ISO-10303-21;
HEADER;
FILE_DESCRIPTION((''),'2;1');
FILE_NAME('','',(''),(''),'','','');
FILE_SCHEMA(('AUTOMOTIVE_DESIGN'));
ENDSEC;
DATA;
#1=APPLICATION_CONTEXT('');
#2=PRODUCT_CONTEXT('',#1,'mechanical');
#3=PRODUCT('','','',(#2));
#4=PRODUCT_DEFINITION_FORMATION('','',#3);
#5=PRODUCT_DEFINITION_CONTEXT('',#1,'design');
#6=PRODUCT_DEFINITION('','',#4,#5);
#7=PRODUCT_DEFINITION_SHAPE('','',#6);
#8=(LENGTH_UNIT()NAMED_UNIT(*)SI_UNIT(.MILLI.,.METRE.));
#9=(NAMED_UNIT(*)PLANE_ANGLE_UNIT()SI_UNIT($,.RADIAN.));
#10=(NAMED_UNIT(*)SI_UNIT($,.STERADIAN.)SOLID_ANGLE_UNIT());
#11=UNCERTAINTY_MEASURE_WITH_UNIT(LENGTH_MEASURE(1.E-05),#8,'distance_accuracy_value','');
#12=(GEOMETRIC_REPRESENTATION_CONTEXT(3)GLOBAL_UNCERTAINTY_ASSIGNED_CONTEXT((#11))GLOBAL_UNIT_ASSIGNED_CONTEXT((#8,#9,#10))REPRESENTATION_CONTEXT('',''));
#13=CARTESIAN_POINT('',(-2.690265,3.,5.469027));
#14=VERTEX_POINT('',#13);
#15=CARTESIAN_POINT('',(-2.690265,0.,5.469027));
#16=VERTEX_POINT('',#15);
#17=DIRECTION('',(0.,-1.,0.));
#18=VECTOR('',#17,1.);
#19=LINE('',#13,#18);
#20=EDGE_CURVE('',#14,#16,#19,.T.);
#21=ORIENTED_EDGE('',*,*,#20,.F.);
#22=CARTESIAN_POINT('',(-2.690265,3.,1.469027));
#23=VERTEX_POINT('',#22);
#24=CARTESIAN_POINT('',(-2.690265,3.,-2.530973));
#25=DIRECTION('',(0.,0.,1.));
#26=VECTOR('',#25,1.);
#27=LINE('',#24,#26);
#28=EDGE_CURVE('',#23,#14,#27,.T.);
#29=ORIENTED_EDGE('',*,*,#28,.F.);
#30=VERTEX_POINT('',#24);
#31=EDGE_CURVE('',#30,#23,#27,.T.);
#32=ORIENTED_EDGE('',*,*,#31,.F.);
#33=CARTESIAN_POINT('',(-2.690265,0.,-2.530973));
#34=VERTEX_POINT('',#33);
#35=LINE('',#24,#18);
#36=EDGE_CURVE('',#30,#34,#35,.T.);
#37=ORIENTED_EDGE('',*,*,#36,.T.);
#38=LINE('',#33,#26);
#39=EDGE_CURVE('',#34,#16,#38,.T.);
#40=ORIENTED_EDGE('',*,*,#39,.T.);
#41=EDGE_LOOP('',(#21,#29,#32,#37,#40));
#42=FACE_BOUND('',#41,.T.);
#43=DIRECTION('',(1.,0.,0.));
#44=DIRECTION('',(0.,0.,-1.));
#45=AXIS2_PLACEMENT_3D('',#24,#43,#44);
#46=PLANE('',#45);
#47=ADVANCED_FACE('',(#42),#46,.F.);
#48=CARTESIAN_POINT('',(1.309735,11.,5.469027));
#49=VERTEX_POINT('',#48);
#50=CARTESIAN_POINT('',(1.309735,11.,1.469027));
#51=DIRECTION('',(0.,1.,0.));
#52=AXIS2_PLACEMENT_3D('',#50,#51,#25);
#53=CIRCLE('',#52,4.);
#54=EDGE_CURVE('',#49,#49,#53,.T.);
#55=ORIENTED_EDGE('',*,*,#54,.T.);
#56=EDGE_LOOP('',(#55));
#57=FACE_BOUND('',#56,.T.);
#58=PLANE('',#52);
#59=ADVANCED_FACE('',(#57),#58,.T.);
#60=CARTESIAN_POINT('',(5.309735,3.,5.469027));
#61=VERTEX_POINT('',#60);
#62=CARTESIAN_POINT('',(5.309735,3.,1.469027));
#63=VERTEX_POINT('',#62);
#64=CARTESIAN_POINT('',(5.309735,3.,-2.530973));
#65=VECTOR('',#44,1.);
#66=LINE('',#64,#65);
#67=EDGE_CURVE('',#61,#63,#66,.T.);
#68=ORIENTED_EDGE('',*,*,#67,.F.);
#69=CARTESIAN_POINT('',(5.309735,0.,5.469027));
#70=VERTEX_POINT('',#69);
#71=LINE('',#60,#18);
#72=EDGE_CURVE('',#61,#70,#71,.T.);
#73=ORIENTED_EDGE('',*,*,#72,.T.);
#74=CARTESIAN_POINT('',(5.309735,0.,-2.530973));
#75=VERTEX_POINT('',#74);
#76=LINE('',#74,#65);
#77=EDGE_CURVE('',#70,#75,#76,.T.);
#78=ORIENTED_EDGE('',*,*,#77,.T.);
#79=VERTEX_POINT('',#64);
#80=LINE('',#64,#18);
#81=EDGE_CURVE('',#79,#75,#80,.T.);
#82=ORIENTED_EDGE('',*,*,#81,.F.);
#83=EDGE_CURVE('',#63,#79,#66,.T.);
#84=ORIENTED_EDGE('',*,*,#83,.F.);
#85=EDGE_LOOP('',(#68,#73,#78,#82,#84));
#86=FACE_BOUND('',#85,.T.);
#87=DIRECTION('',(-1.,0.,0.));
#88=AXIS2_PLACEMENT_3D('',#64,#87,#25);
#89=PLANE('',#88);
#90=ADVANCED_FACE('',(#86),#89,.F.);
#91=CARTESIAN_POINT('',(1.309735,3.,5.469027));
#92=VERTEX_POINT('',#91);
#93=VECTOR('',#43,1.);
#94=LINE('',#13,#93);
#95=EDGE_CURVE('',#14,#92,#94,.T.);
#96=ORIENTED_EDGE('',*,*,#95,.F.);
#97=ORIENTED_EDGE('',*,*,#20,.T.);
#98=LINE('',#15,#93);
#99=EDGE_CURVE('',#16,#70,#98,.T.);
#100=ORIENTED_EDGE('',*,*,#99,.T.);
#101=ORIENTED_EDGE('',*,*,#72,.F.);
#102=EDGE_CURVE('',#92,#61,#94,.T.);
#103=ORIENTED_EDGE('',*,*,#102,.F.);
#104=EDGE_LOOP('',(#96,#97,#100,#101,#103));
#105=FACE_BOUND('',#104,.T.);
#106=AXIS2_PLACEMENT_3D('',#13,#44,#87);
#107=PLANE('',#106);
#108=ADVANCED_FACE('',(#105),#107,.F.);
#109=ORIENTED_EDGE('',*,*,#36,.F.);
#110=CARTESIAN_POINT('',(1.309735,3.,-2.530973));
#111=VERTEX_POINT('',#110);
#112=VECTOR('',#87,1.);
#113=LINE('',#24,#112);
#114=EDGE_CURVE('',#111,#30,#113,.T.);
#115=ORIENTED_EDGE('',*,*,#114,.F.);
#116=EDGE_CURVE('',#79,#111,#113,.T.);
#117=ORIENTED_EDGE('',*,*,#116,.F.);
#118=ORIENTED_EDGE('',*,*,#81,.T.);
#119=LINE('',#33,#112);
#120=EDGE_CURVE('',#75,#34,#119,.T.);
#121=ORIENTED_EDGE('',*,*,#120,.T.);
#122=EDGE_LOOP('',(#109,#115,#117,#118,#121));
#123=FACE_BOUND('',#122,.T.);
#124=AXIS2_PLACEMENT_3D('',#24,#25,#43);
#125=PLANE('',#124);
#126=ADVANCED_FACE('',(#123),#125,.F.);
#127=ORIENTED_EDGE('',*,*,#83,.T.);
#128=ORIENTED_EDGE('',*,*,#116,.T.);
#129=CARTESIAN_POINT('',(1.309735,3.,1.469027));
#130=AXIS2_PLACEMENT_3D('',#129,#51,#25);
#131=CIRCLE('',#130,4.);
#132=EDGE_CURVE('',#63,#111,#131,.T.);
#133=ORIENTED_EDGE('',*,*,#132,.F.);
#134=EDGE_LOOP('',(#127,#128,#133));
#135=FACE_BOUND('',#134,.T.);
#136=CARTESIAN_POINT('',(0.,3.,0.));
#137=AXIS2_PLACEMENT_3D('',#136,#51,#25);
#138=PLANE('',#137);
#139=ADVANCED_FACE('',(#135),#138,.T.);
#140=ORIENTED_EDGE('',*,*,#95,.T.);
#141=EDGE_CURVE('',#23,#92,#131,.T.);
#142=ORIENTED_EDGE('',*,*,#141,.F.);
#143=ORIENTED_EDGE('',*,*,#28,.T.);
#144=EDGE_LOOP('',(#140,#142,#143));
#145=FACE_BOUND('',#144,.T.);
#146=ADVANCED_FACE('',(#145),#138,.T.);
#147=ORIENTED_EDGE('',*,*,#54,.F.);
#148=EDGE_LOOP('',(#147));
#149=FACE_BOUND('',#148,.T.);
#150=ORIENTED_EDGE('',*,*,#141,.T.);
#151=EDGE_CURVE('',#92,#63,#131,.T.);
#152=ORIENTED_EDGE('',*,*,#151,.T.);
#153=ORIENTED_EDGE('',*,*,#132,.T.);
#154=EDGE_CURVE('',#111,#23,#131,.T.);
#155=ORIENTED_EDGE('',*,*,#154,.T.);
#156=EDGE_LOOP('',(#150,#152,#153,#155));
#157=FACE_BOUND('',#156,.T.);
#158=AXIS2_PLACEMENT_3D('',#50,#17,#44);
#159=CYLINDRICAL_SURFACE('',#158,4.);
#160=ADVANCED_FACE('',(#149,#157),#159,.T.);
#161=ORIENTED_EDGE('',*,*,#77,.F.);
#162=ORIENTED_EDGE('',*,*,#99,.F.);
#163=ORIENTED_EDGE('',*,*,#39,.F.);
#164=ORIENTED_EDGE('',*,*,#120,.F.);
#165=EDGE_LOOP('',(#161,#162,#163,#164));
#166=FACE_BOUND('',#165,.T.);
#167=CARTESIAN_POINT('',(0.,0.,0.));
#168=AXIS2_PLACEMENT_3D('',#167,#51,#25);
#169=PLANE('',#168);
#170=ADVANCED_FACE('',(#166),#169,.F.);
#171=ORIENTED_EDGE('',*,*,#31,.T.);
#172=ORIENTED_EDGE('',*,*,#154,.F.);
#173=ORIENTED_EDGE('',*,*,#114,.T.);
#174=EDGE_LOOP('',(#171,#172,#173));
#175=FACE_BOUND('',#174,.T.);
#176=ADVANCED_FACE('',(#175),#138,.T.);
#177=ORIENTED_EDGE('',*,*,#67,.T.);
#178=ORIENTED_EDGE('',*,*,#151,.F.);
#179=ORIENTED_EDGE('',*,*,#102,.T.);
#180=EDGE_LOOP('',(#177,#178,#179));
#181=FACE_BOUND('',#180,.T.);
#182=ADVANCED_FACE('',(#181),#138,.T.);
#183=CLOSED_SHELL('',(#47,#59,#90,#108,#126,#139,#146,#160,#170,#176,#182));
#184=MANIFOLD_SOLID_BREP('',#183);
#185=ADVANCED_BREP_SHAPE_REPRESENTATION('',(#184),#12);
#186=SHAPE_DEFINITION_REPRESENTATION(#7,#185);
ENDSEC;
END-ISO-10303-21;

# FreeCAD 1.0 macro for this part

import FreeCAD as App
import Part
import Sketcher
Q = App.Units.Quantity

doc = App.newDocument("Part")
body = doc.addObject("PartDesign::Body", "Body")

sketch1 = body.newObject("Sketcher::SketchObject", "Sketch")
sketch1.AttachmentSupport = (doc.getObject("XZ_Plane"), [""])
sketch1.MapMode = "FlatFace"
sketch1.addGeometry([
    Part.LineSegment(App.Vector(-3, -3, 0), App.Vector(-3, 5, 0)),
    Part.LineSegment(App.Vector(-3, 5, 0), App.Vector(5, 5, 0)),
    Part.LineSegment(App.Vector(5, 5, 0), App.Vector(5, -3, 0)),
    Part.LineSegment(App.Vector(5, -3, 0), App.Vector(-3, -3, 0)),
], False)
sketch1.addConstraint([
    Sketcher.Constraint("Coincident", 0, 2, 1, 1),
    Sketcher.Constraint("Coincident", 1, 2, 2, 1),
    Sketcher.Constraint("Coincident", 2, 2, 3, 1),
    Sketcher.Constraint("Coincident", 3, 2, 0, 1),
    Sketcher.Constraint("Vertical", 0),
    Sketcher.Constraint("Horizontal", 1),
    Sketcher.Constraint("Vertical", 2),
    Sketcher.Constraint("Horizontal", 3),
    Sketcher.Constraint("Equal", 3, 0),
    Sketcher.Constraint("DistanceX", 1, 1, 1, 2, Q("8 mm")),
    Sketcher.Constraint("DistanceX", 0, 2, -1, 1, Q("2.690265 mm")),
    Sketcher.Constraint("DistanceY", -1, 1, 0, 2, Q("5.469027 mm")),
])
pad1 = body.newObject("PartDesign::Pad", "Pad")
pad1.Profile = sketch1
pad1.Length = 3
pad1.Reversed = True

sketch2 = body.newObject("Sketcher::SketchObject", "Sketch001")
sketch2.AttachmentSupport = (doc.getObject("XZ_Plane"), [""])
sketch2.MapMode = "FlatFace"
sketch2.AttachmentOffset = App.Placement(App.Vector(0, 0, -3), App.Rotation())
sketch2.addGeometry(Part.Circle(App.Vector(1.3, 1.5, 0), App.Vector(0, 0, 1), 4), False)
sketch2.addConstraint([
    Sketcher.Constraint("Diameter", 0, Q("8 mm")),
    Sketcher.Constraint("DistanceX", -1, 1, 0, 3, Q("1.309735 mm")),
    Sketcher.Constraint("DistanceY", -1, 1, 0, 3, Q("1.469027 mm")),
])
pad2 = body.newObject("PartDesign::Pad", "Pad001")
pad2.Profile = sketch2
pad2.Length = 8
pad2.Reversed = True

doc.recompute()
